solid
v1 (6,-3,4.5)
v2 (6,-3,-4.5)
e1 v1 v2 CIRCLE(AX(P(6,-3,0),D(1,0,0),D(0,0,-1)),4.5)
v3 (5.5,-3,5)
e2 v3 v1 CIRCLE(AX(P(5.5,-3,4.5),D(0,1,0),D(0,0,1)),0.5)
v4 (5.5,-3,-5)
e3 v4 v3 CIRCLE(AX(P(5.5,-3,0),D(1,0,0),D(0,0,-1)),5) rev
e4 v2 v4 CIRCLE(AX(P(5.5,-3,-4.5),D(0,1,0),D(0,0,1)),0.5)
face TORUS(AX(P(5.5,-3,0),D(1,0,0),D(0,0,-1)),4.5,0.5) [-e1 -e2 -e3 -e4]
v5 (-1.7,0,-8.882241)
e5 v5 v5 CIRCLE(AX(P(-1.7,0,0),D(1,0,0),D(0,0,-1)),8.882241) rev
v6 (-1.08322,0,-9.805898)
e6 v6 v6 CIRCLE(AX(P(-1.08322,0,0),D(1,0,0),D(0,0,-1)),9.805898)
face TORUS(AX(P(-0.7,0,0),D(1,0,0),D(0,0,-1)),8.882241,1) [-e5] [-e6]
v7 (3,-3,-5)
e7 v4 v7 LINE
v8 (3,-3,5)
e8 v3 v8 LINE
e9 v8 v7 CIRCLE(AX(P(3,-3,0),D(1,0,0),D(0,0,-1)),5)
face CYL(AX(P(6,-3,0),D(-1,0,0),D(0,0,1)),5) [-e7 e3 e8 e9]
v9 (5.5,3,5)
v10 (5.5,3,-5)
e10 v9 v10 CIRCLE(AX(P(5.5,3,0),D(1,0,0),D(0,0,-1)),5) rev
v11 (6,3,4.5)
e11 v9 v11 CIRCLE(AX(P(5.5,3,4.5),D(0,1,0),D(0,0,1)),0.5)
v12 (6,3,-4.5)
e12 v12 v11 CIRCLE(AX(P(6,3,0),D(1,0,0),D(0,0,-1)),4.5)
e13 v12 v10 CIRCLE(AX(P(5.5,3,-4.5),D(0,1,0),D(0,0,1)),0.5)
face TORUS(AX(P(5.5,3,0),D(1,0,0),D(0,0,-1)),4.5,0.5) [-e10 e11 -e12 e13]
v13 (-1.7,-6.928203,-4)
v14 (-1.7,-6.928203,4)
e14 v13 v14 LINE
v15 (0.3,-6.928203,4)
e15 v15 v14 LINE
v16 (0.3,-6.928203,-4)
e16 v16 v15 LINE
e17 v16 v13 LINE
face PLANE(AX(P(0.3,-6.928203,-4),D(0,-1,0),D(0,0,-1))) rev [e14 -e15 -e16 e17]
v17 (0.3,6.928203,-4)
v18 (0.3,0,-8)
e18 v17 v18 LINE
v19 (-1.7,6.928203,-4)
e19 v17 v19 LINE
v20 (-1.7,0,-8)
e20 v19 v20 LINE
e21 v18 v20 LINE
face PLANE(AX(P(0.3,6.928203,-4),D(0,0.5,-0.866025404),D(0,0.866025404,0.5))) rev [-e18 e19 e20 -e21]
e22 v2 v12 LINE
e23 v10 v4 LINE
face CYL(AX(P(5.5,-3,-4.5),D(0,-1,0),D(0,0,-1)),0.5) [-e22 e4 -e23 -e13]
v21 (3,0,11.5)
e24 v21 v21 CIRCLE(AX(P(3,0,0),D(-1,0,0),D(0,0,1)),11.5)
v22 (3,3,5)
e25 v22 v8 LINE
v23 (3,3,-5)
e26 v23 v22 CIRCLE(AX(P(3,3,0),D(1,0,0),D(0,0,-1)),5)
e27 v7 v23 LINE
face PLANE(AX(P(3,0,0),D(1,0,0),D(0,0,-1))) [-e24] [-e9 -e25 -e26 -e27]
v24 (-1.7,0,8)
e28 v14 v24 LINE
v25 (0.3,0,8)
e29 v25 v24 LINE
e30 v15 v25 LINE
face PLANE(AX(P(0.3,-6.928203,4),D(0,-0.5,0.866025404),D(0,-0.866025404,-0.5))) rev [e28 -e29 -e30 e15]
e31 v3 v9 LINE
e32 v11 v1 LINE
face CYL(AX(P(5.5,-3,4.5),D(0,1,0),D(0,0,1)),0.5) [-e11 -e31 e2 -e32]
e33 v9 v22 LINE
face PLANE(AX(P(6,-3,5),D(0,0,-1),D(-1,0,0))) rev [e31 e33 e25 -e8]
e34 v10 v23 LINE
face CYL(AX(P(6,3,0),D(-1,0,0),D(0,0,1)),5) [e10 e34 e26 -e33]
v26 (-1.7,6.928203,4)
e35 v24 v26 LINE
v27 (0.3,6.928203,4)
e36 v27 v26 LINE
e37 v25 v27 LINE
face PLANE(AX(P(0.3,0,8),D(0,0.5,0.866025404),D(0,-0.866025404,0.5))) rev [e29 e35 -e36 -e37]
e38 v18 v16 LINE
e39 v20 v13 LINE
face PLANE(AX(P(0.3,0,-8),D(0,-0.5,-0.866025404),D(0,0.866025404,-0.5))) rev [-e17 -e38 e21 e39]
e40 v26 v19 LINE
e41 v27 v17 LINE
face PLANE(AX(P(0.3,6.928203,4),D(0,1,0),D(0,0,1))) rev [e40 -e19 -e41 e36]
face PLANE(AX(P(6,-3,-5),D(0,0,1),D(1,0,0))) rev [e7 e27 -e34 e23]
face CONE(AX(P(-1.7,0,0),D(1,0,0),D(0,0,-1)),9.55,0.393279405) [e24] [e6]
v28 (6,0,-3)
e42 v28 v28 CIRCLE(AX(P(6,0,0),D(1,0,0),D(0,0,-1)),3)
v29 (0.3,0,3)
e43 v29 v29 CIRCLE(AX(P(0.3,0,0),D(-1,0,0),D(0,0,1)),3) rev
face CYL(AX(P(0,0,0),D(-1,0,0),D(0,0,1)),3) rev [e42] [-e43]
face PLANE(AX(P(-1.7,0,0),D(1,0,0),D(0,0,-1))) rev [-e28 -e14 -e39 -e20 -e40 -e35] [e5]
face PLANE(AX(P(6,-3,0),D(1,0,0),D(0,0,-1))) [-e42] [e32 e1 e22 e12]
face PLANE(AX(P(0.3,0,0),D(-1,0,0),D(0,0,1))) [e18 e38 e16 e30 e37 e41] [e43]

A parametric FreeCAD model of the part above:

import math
import FreeCAD as App
import Part
import Sketcher

V = App.Vector
Q = App.Units.Quantity


def edges_at(feature, points):
    """Names of the edges that pass closest to the given points."""
    edges = feature.Shape.Edges
    near = lambda p: min(range(len(edges)), key=lambda i: edges[i].distToShape(Part.Vertex(*p))[0])
    return sorted({f"Edge{near(p) + 1}" for p in points})

doc = App.newDocument("Part")
body = doc.addObject("PartDesign::Body", "Body")

sketch1 = body.newObject("Sketcher::SketchObject", "Sketch")
sketch1.AttachmentSupport = (doc.getObject("XY_Plane"), [""])
sketch1.MapMode = "FlatFace"
sketch1.addGeometry([
    Part.LineSegment(V(-1.7, 3, 0), V(3, 3, 0)),
    Part.LineSegment(V(3, 3, 0), V(3, 11.5, 0)),
    Part.LineSegment(V(3, 11.5, 0), V(-1.7, 9.6, 0)),
    Part.LineSegment(V(-1.7, 9.6, 0), V(-1.7, 3, 0)),
], False)
sketch1.addConstraint([
    Sketcher.Constraint("Coincident", 0, 2, 1, 1),
    Sketcher.Constraint("Coincident", 1, 2, 2, 1),
    Sketcher.Constraint("Coincident", 2, 2, 3, 1),
    Sketcher.Constraint("Coincident", 3, 2, 0, 1),
    Sketcher.Constraint("Horizontal", 0),
    Sketcher.Constraint("Vertical", 1),
    Sketcher.Constraint("Vertical", 3),
    Sketcher.Constraint("DistanceX", 0, 1, 0, 2, Q("4.7 mm")),
    Sketcher.Constraint("DistanceY", 1, 1, 1, 2, Q("8.5 mm")),
    Sketcher.Constraint("DistanceX", -1, 1, 0, 2, Q("3 mm")),
    Sketcher.Constraint("DistanceY", -1, 1, 0, 2, Q("3 mm")),
    Sketcher.Constraint("DistanceY", 3, 2, 3, 1, Q("6.55 mm")),
])
revolution = body.newObject("PartDesign::Revolution", "Revolution")
revolution.Profile = sketch1
revolution.ReferenceAxis = (sketch1, ["H_Axis"])
revolution.Angle = 360
doc.recompute()

fillet = body.newObject("PartDesign::Fillet", "Fillet")
fillet.Base = (revolution, edges_at(revolution, [(-1.7, 0, -9.55)]))
fillet.Radius = 1

sketch2 = body.newObject("Sketcher::SketchObject", "Sketch001")
sketch2.AttachmentSupport = (doc.getObject("YZ_Plane"), [""])
sketch2.MapMode = "FlatFace"
sketch2.AttachmentOffset = App.Placement(V(0, 0, 3), App.Rotation())
sketch2.addGeometry([
    Part.LineSegment(V(3, 5, 0), V(-3, 5, 0)),
    Part.ArcOfCircle(Part.Circle(V(-3, 0, 0), V(0, 0, 1), 5), math.radians(90), math.radians(270)),
    Part.LineSegment(V(-3, -5, 0), V(3, -5, 0)),
    Part.ArcOfCircle(Part.Circle(V(3, 0, 0), V(0, 0, 1), 5), math.radians(-90), math.radians(90)),
    Part.Circle(V(0, 0, 0), V(0, 0, 1), 3),
], False)
sketch2.addConstraint([
    Sketcher.Constraint("Tangent", 0, 2, 1, 1),
    Sketcher.Constraint("Tangent", 1, 2, 2, 1),
    Sketcher.Constraint("Tangent", 2, 2, 3, 1),
    Sketcher.Constraint("Tangent", 3, 2, 0, 1),
    Sketcher.Constraint("Horizontal", 0),
    Sketcher.Constraint("Horizontal", 2),
    Sketcher.Constraint("Coincident", 4, 3, -1, 1),
    Sketcher.Constraint("Symmetric", 1, 3, 3, 3, -1, 1),
    Sketcher.Constraint("Diameter", 4, Q("6 mm")),
    Sketcher.Constraint("Radius", 1, Q("5 mm")),
    Sketcher.Constraint("DistanceX", 0, 2, 0, 1, Q("6 mm")),
])
pad1 = body.newObject("PartDesign::Pad", "Pad")
pad1.Profile = sketch2
pad1.Length = 3
doc.recompute()

fillet2 = body.newObject("PartDesign::Fillet", "Fillet001")
fillet2.Base = (pad1, edges_at(pad1, [
    (6, -8, 0),
    (6, 0, -5),
    (6, 8, 0),
    (6, 0, 5),
]))
fillet2.Radius = 0.5

sketch3 = body.newObject("Sketcher::SketchObject", "Sketch002")
sketch3.AttachmentSupport = (doc.getObject("YZ_Plane"), [""])
sketch3.MapMode = "FlatFace"
sketch3.AttachmentOffset = App.Placement(V(0, 0, -1.7), App.Rotation())
sketch3.addGeometry([
    Part.LineSegment(V(7, 4, 0), V(7, -4, 0)),
    Part.LineSegment(V(7, -4, 0), V(0, -8, 0)),
    Part.LineSegment(V(0, -8, 0), V(-7, -4, 0)),
    Part.LineSegment(V(-7, -4, 0), V(-7, 4, 0)),
    Part.LineSegment(V(-7, 4, 0), V(0, 8, 0)),
    Part.LineSegment(V(0, 8, 0), V(7, 4, 0)),
], False)
sketch3.addConstraint([
    Sketcher.Constraint("Coincident", 0, 2, 1, 1),
    Sketcher.Constraint("Coincident", 1, 2, 2, 1),
    Sketcher.Constraint("Coincident", 2, 2, 3, 1),
    Sketcher.Constraint("Coincident", 3, 2, 4, 1),
    Sketcher.Constraint("Coincident", 4, 2, 5, 1),
    Sketcher.Constraint("Coincident", 5, 2, 0, 1),
    Sketcher.Constraint("Vertical", 0),
    Sketcher.Constraint("Vertical", 3),
    Sketcher.Constraint("Symmetric", 0, 2, 3, 2, -1, 1),
    Sketcher.Constraint("Symmetric", 1, 2, 4, 2, -1, 1),
    Sketcher.Constraint("PointOnObject", 1, 2, -2),
    Sketcher.Constraint("Parallel", 2, 5),
    Sketcher.Constraint("Horizontal", 0, 2, 2, 2),
    Sketcher.Constraint("DistanceY", 0, 2, 0, 1, Q("8 mm")),
    Sketcher.Constraint("Angle", 1, Q("-150 deg")),
    Sketcher.Constraint("Distance", 1, Q("8 mm")),
])
pocket1 = body.newObject("PartDesign::Pocket", "Pocket")
pocket1.Profile = sketch3
pocket1.Length = 2
pocket1.Reversed = True

doc.recompute()
